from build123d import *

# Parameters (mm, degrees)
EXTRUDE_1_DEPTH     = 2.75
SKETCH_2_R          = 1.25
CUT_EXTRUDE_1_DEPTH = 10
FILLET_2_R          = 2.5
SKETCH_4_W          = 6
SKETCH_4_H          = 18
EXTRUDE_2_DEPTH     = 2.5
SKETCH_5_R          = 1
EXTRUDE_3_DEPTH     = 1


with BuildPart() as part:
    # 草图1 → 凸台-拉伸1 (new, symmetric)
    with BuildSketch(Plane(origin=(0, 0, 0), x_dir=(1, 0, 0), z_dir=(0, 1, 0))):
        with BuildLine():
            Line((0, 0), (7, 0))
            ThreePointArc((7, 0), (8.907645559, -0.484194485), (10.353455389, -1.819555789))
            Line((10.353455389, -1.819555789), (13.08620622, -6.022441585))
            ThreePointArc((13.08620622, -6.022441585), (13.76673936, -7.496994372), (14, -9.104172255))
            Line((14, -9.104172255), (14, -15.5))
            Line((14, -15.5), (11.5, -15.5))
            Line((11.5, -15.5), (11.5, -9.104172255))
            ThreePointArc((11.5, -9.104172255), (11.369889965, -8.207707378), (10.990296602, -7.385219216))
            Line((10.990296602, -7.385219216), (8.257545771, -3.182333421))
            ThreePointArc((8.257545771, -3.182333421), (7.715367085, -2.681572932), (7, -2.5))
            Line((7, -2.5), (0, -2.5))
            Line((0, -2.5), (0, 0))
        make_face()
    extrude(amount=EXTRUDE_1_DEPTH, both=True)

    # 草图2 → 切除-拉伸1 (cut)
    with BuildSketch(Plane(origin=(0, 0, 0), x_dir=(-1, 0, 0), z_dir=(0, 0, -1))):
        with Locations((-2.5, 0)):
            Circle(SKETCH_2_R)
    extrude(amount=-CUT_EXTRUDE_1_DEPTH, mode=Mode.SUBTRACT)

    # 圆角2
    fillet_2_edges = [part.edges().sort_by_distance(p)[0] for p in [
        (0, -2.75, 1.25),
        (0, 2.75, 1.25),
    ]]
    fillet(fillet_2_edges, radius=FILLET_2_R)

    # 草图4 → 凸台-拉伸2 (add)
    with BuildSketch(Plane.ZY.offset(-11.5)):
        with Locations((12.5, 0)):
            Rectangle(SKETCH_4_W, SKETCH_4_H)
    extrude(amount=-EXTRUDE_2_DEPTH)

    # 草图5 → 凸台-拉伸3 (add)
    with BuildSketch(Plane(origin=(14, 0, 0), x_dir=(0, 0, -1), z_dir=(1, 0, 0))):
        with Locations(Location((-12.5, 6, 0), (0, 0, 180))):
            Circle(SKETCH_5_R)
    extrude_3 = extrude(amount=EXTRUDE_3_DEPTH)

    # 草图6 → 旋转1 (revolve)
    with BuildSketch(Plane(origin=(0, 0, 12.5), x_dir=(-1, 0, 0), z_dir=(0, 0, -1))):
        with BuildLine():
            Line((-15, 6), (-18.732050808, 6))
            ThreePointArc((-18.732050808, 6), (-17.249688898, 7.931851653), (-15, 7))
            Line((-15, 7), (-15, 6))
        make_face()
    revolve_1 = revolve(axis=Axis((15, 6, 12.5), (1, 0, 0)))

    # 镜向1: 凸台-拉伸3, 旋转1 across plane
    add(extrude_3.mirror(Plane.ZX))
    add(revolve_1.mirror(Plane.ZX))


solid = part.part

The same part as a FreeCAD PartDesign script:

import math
import FreeCAD as App
import Part
import Sketcher

V = App.Vector
Q = App.Units.Quantity


def edges_at(feature, points):
    """Names of the edges that pass closest to the given points."""
    edges = feature.Shape.Edges
    near = lambda p: min(range(len(edges)), key=lambda i: edges[i].distToShape(Part.Vertex(*p))[0])
    return sorted({f"Edge{near(p) + 1}" for p in points})

doc = App.newDocument("Part")
body = doc.addObject("PartDesign::Body", "Body")

# Sketch on XZ plane
sketch1 = body.newObject("Sketcher::SketchObject", "Sketch")
sketch1.AttachmentSupport = (doc.getObject("XZ_Plane"), [""])
sketch1.MapMode = "FlatFace"
sketch1.addGeometry(Part.LineSegment(V(7, 0, 0), V(0, 0, 0)), False)
sketch1.addGeometry(Part.LineSegment(V(0, 0, 0), V(0, 2.5, 0)), False)
sketch1.addGeometry(Part.LineSegment(V(0, 2.5, 0), V(7, 2.5, 0)), False)
sketch1.addGeometry(Part.ArcOfCircle(Part.Circle(V(7, 4, 0), V(0, 0, 1), 1.5), math.radians(-90), math.radians(-33)), False)
sketch1.addGeometry(Part.LineSegment(V(8.3, 3.2, 0), V(11, 7.4, 0)), False)
sketch1.addGeometry(Part.ArcOfCircle(Part.Circle(V(8.3, 9.1, 0), V(0, 0, 1), 3.2), math.radians(-33), math.radians(0)), False)
sketch1.addGeometry(Part.LineSegment(V(11.5, 9.1, 0), V(11.5, 15.5, 0)), False)
sketch1.addGeometry(Part.LineSegment(V(11.5, 15.5, 0), V(14, 15.5, 0)), False)
sketch1.addGeometry(Part.LineSegment(V(14, 15.5, 0), V(14, 9.1, 0)), False)
sketch1.addGeometry(Part.ArcOfCircle(Part.Circle(V(8.3, 9.1, 0), V(0, 0, 1), 5.7), math.radians(-33), math.radians(0)), False)
sketch1.addGeometry(Part.LineSegment(V(13.1, 6, 0), V(10.4, 1.8, 0)), False)
sketch1.addGeometry(Part.ArcOfCircle(Part.Circle(V(7, 4, 0), V(0, 0, 1), 4), math.radians(-90), math.radians(-33)), False)
sketch1.addConstraint(Sketcher.Constraint("Coincident", 0, 2, 1, 1))
sketch1.addConstraint(Sketcher.Constraint("Coincident", 1, 2, 2, 1))
sketch1.addConstraint(Sketcher.Constraint("Tangent", 2, 2, 3, 1))
sketch1.addConstraint(Sketcher.Constraint("Tangent", 3, 2, 4, 1))
sketch1.addConstraint(Sketcher.Constraint("Tangent", 4, 2, 5, 1))
sketch1.addConstraint(Sketcher.Constraint("Tangent", 5, 2, 6, 1))
sketch1.addConstraint(Sketcher.Constraint("Coincident", 6, 2, 7, 1))
sketch1.addConstraint(Sketcher.Constraint("Coincident", 7, 2, 8, 1))
sketch1.addConstraint(Sketcher.Constraint("Tangent", 8, 2, 9, 2))
sketch1.addConstraint(Sketcher.Constraint("Tangent", 9, 1, 10, 1))
sketch1.addConstraint(Sketcher.Constraint("Tangent", 10, 2, 11, 2))
sketch1.addConstraint(Sketcher.Constraint("Tangent", 11, 1, 0, 1))
sketch1.addConstraint(Sketcher.Constraint("Horizontal", 0))
sketch1.addConstraint(Sketcher.Constraint("Vertical", 1))
sketch1.addConstraint(Sketcher.Constraint("Horizontal", 2))
sketch1.addConstraint(Sketcher.Constraint("Vertical", 6))
sketch1.addConstraint(Sketcher.Constraint("Horizontal", 7))
sketch1.addConstraint(Sketcher.Constraint("Vertical", 8))
sketch1.addConstraint(Sketcher.Constraint("Coincident", 0, 2, -1, 1))
sketch1.addConstraint(Sketcher.Constraint("Coincident", 9, 3, 5, 3))
sketch1.addConstraint(Sketcher.Constraint("Coincident", 11, 3, 3, 3))
sketch1.addConstraint(Sketcher.Constraint("Parallel", 4, 10))
sketch1.addConstraint(Sketcher.Constraint("Radius", 11, Q("4 mm")))
sketch1.addConstraint(Sketcher.Constraint("Radius", 3, Q("1.5 mm")))
sketch1.addConstraint(Sketcher.Constraint("DistanceX", 0, 2, 0, 1, Q("7 mm")))
sketch1.addConstraint(Sketcher.Constraint("DistanceX", -1, 1, 7, 2, Q("14 mm")))
sketch1.addConstraint(Sketcher.Constraint("DistanceY", -1, 1, 6, 2, Q("15.5 mm")))
sketch1.addConstraint(Sketcher.Constraint("Radius", 5, Q("3.1534 mm")))
sketch1.addConstraint(Sketcher.Constraint("Distance", 4, Q("5.0132 mm")))
pad1 = body.newObject("PartDesign::Pad", "Pad")
pad1.Profile = sketch1
pad1.Length = 5.5
pad1.Midplane = True

# Sketch on XY plane
sketch2 = body.newObject("Sketcher::SketchObject", "Sketch001")
sketch2.AttachmentSupport = (doc.getObject("XY_Plane"), [""])
sketch2.MapMode = "FlatFace"
sketch2.addGeometry(Part.Circle(V(2.5, 0, 0), V(0, 0, 1), 1.2), False)
sketch2.addConstraint(Sketcher.Constraint("PointOnObject", 0, 3, -1))
sketch2.addConstraint(Sketcher.Constraint("Diameter", 0, Q("2.5 mm")))
sketch2.addConstraint(Sketcher.Constraint("DistanceX", -1, 1, 0, 3, Q("2.5 mm")))
pocket1 = body.newObject("PartDesign::Pocket", "Pocket")
pocket1.Profile = sketch2
pocket1.Length = 10
pocket1.Reversed = True
doc.recompute()

fillet = body.newObject("PartDesign::Fillet", "Fillet")
fillet.Base = (pocket1, edges_at(pocket1, [(0, -2.75, 1.25), (0, 2.75, 1.25)]))
fillet.Radius = 2.5

# Sketch on YZ plane
sketch3 = body.newObject("Sketcher::SketchObject", "Sketch002")
sketch3.AttachmentSupport = (doc.getObject("YZ_Plane"), [""])
sketch3.MapMode = "FlatFace"
sketch3.AttachmentOffset = App.Placement(V(0, 0, 11.5), App.Rotation())
sketch3.addGeometry(Part.LineSegment(V(9, 10, 0), V(-9, 10, 0)), False)
sketch3.addGeometry(Part.LineSegment(V(-9, 10, 0), V(-9, 16, 0)), False)
sketch3.addGeometry(Part.LineSegment(V(-9, 16, 0), V(9, 16, 0)), False)
sketch3.addGeometry(Part.LineSegment(V(9, 16, 0), V(9, 10, 0)), False)
sketch3.addConstraint(Sketcher.Constraint("Coincident", 0, 2, 1, 1))
sketch3.addConstraint(Sketcher.Constraint("Coincident", 1, 2, 2, 1))
sketch3.addConstraint(Sketcher.Constraint("Coincident", 2, 2, 3, 1))
sketch3.addConstraint(Sketcher.Constraint("Coincident", 3, 2, 0, 1))
sketch3.addConstraint(Sketcher.Constraint("Horizontal", 0))
sketch3.addConstraint(Sketcher.Constraint("Vertical", 1))
sketch3.addConstraint(Sketcher.Constraint("Horizontal", 2))
sketch3.addConstraint(Sketcher.Constraint("Vertical", 3))
sketch3.addConstraint(Sketcher.Constraint("DistanceX", 0, 2, 0, 1, Q("18 mm")))
sketch3.addConstraint(Sketcher.Constraint("DistanceY", 1, 1, 1, 2, Q("6 mm")))
sketch3.addConstraint(Sketcher.Constraint("DistanceX", 0, 2, -1, 1, Q("9 mm")))
sketch3.addConstraint(Sketcher.Constraint("DistanceY", -1, 1, 0, 2, Q("9.5 mm")))
pad2 = body.newObject("PartDesign::Pad", "Pad001")
pad2.Profile = sketch3
pad2.Length = 2.5

# Sketch on YZ plane
sketch4 = body.newObject("Sketcher::SketchObject", "Sketch003")
sketch4.AttachmentSupport = (doc.getObject("YZ_Plane"), [""])
sketch4.MapMode = "FlatFace"
sketch4.AttachmentOffset = App.Placement(V(0, 0, 14), App.Rotation())
sketch4.addGeometry(Part.Circle(V(6, 12.5, 0), V(0, 0, 1), 1), False)
sketch4.addConstraint(Sketcher.Constraint("Diameter", 0, Q("2 mm")))
sketch4.addConstraint(Sketcher.Constraint("DistanceX", -1, 1, 0, 3, Q("6 mm")))
sketch4.addConstraint(Sketcher.Constraint("DistanceY", -1, 1, 0, 3, Q("12.5 mm")))
pad3 = body.newObject("PartDesign::Pad", "Pad002")
pad3.Profile = sketch4
pad3.Length = 1

# Sketch on XY plane
sketch5 = body.newObject("Sketcher::SketchObject", "Sketch004")
sketch5.AttachmentSupport = (doc.getObject("XY_Plane"), [""])
sketch5.MapMode = "FlatFace"
sketch5.AttachmentOffset = App.Placement(V(0, 0, 12.5), App.Rotation())
sketch5.addGeometry(Part.LineSegment(V(18.7, 6, 0), V(15, 6, 0)), False)
sketch5.addGeometry(Part.LineSegment(V(15, 6, 0), V(15, 7, 0)), False)
sketch5.addGeometry(Part.ArcOfCircle(Part.Circle(V(16.7, 6, 0), V(0, 0, 1), 2), math.radians(0), math.radians(150)), False)
sketch5.addGeometry(Part.LineSegment(V(15, 6, 0), V(18.7, 6, 0)), True)  # axis
sketch5.addConstraint(Sketcher.Constraint("Coincident", 0, 2, 1, 1))
sketch5.addConstraint(Sketcher.Constraint("Coincident", 1, 2, 2, 2))
sketch5.addConstraint(Sketcher.Constraint("Coincident", 2, 1, 0, 1))
sketch5.addConstraint(Sketcher.Constraint("Horizontal", 0))
sketch5.addConstraint(Sketcher.Constraint("Vertical", 1))
sketch5.addConstraint(Sketcher.Constraint("Horizontal", 3))
sketch5.addConstraint(Sketcher.Constraint("Coincident", 3, 1, 0, 2))
sketch5.addConstraint(Sketcher.Constraint("Horizontal", 2, 3, 0, 2))
sketch5.addConstraint(Sketcher.Constraint("Equal", 0, 3))
sketch5.addConstraint(Sketcher.Constraint("Radius", 2, Q("2 mm")))
sketch5.addConstraint(Sketcher.Constraint("DistanceY", 1, 1, 1, 2, Q("1 mm")))
sketch5.addConstraint(Sketcher.Constraint("DistanceY", -1, 1, 2, 3, Q("6 mm")))
sketch5.addConstraint(Sketcher.Constraint("DistanceX", -1, 1, 0, 2, Q("15 mm")))
revolution = body.newObject("PartDesign::Revolution", "Revolution")
revolution.Profile = sketch5
revolution.ReferenceAxis = (sketch5, ["Axis0"])
revolution.Angle = 360
doc.recompute()

mirrored = body.newObject("PartDesign::Mirrored", "Mirrored")
mirrored.Originals = [pad3, revolution]
mirrored.MirrorPlane = (doc.getObject("XZ_Plane"), [""])
body.Tip = mirrored

doc.recompute()
